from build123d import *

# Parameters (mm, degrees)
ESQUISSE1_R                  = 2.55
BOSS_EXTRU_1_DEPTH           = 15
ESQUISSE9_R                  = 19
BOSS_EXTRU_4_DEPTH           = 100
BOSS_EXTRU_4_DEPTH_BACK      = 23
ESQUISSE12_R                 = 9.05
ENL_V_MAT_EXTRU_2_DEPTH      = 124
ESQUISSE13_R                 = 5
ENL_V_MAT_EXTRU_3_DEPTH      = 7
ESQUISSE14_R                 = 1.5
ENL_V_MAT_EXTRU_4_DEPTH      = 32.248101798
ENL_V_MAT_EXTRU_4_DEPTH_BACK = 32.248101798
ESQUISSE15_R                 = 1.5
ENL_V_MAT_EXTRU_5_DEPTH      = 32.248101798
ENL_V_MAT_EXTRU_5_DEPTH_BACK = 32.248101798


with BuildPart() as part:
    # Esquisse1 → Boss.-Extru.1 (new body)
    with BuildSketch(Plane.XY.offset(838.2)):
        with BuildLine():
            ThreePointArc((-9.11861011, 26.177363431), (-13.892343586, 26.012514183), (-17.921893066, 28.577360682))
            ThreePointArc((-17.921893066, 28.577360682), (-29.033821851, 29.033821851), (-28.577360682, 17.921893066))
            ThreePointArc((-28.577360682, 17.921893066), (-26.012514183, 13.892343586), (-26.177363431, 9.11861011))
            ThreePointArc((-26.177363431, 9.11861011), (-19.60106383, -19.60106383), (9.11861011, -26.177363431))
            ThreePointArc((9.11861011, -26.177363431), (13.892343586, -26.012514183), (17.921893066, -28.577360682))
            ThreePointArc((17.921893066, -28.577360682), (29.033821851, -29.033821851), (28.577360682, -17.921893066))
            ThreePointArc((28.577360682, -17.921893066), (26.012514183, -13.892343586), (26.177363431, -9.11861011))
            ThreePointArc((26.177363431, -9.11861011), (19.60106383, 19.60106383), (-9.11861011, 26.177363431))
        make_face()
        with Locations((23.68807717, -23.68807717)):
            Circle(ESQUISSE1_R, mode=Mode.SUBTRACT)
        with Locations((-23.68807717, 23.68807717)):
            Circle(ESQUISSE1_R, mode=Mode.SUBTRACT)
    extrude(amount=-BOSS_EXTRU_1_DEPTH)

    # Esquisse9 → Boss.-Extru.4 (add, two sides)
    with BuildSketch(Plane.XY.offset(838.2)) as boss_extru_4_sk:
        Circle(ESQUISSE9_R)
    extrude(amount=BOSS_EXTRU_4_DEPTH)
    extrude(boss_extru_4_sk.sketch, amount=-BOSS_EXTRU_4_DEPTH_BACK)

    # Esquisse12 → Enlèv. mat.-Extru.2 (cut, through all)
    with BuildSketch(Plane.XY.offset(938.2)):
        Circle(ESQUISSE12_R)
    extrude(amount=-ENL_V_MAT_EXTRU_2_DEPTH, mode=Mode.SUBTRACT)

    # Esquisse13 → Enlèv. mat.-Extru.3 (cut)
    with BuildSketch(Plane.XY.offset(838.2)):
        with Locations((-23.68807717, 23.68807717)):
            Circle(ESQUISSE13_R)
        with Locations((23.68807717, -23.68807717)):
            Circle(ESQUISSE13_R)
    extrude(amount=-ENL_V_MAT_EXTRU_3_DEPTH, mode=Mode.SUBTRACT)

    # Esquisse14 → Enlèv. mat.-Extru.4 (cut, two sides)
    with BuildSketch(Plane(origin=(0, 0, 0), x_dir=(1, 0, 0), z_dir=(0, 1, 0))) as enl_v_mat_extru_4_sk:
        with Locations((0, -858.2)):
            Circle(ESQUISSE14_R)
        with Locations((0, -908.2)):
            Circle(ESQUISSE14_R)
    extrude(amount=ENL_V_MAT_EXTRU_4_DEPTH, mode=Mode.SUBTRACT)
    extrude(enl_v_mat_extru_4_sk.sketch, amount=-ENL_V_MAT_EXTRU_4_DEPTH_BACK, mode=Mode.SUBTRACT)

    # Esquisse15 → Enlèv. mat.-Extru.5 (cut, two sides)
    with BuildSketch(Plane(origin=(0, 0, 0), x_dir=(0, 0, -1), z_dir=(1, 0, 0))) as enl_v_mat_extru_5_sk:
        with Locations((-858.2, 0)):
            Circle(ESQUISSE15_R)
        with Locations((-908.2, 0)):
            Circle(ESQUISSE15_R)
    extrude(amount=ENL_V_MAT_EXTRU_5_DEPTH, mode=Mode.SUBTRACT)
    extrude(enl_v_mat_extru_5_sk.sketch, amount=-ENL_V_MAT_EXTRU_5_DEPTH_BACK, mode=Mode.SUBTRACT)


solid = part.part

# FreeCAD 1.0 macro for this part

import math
import FreeCAD as App
import Part
import Sketcher
from FreeCAD import Vector

doc = App.newDocument("Part")
body = doc.addObject("PartDesign::Body", "Body")

# Sketch on XY plane
sketch1 = doc.addObject("Sketcher::SketchObject", "Sketch")
body.addObject(sketch1)
sketch1.AttachmentSupport = (doc.XY_Plane, [""])
sketch1.MapMode = "FlatFace"
sketch1.AttachmentOffset = App.Placement(Vector(0, 0, 838.2), App.Rotation())
sketch1.addGeometry(Part.ArcOfCircle(Part.Circle(Vector(-11.8, 33.8, 0), Vector(0, 0, 1), 8.1), math.radians(-140), math.radians(-71)), False)
sketch1.addGeometry(Part.ArcOfCircle(Part.Circle(Vector(-23.7, 23.7, 0), Vector(0, 0, 1), 7.6), math.radians(40), math.radians(230)), False)
sketch1.addGeometry(Part.ArcOfCircle(Part.Circle(Vector(-33.8, 11.8, 0), Vector(0, 0, 1), 8.1), math.radians(-19), math.radians(50)), False)
sketch1.addGeometry(Part.ArcOfCircle(Part.Circle(Vector(0, 0, 0), Vector(0, 0, 1), 27.7), math.radians(161), math.radians(289)), False)
sketch1.addGeometry(Part.ArcOfCircle(Part.Circle(Vector(11.8, -33.8, 0), Vector(0, 0, 1), 8.1), math.radians(40), math.radians(109)), False)
sketch1.addGeometry(Part.ArcOfCircle(Part.Circle(Vector(23.7, -23.7, 0), Vector(0, 0, 1), 7.6), math.radians(-140), math.radians(50)), False)
sketch1.addGeometry(Part.ArcOfCircle(Part.Circle(Vector(33.8, -11.8, 0), Vector(0, 0, 1), 8.1), math.radians(161), math.radians(230)), False)
sketch1.addGeometry(Part.ArcOfCircle(Part.Circle(Vector(0, 0, 0), Vector(0, 0, 1), 27.7), math.radians(-19), math.radians(109)), False)
sketch1.addGeometry(Part.Circle(Vector(23.7, -23.7, 0), Vector(0, 0, 1), 2.5), False)
sketch1.addGeometry(Part.Circle(Vector(-23.7, 23.7, 0), Vector(0, 0, 1), 2.5), False)
sketch1.addConstraint(Sketcher.Constraint("Tangent", 0, 1, 1, 1))
sketch1.addConstraint(Sketcher.Constraint("Tangent", 1, 2, 2, 2))
sketch1.addConstraint(Sketcher.Constraint("Tangent", 2, 1, 3, 1))
sketch1.addConstraint(Sketcher.Constraint("Tangent", 3, 2, 4, 2))
sketch1.addConstraint(Sketcher.Constraint("Tangent", 4, 1, 5, 1))
sketch1.addConstraint(Sketcher.Constraint("Tangent", 5, 2, 6, 2))
sketch1.addConstraint(Sketcher.Constraint("Tangent", 6, 1, 7, 1))
sketch1.addConstraint(Sketcher.Constraint("Tangent", 7, 2, 0, 2))
sketch1.addConstraint(Sketcher.Constraint("Coincident", 3, 3, -1, 1))
sketch1.addConstraint(Sketcher.Constraint("Coincident", 7, 3, -1, 1))
sketch1.addConstraint(Sketcher.Constraint("Coincident", 8, 3, 5, 3))
sketch1.addConstraint(Sketcher.Constraint("Coincident", 9, 3, 1, 3))
sketch1.addConstraint(Sketcher.Constraint("Equal", 0, 2))
sketch1.addConstraint(Sketcher.Constraint("Equal", 2, 4))
sketch1.addConstraint(Sketcher.Constraint("Equal", 1, 5))
sketch1.addConstraint(Sketcher.Constraint("Equal", 4, 6))
sketch1.addConstraint(Sketcher.Constraint("Equal", 3, 7))
sketch1.addConstraint(Sketcher.Constraint("Equal", 8, 9))
sketch1.addConstraint(Sketcher.Constraint("Symmetric", 1, 3, 5, 3, -1, 1))
sketch1.addConstraint(Sketcher.Constraint("Diameter", 8, 5.1))
sketch1.addConstraint(Sketcher.Constraint("Radius", 3, 27.72009))
sketch1.addConstraint(Sketcher.Constraint("Radius", 0, 8.064026))
sketch1.addConstraint(Sketcher.Constraint("Radius", 1, 7.560025))
sketch1.addConstraint(Sketcher.Constraint("DistanceX", 2, 3, 0, 3, 22.0213))
sketch1.addConstraint(Sketcher.Constraint("DistanceY", 2, 3, 0, 3, 22.0213))
pad1 = doc.addObject("PartDesign::Pad", "Pad")
body.addObject(pad1)
pad1.Profile = sketch1
pad1.Length = 15
pad1.Reversed = True

# Sketch on XY plane
sketch2 = doc.addObject("Sketcher::SketchObject", "Sketch001")
body.addObject(sketch2)
sketch2.AttachmentSupport = (doc.XY_Plane, [""])
sketch2.MapMode = "FlatFace"
sketch2.AttachmentOffset = App.Placement(Vector(0, 0, 838.2), App.Rotation())
sketch2.addGeometry(Part.Circle(Vector(0, 0, 0), Vector(0, 0, 1), 19), False)
sketch2.addConstraint(Sketcher.Constraint("Coincident", 0, 3, -1, 1))
sketch2.addConstraint(Sketcher.Constraint("Diameter", 0, 38.0))
pad2 = doc.addObject("PartDesign::Pad", "Pad001")
body.addObject(pad2)
pad2.Profile = sketch2
pad2.Type = "TwoLengths"
pad2.Length = 100
pad2.Length2 = 23

# Sketch on XY plane
sketch3 = doc.addObject("Sketcher::SketchObject", "Sketch002")
body.addObject(sketch3)
sketch3.AttachmentSupport = (doc.XY_Plane, [""])
sketch3.MapMode = "FlatFace"
sketch3.AttachmentOffset = App.Placement(Vector(0, 0, 938.2), App.Rotation())
sketch3.addGeometry(Part.Circle(Vector(0, 0, 0), Vector(0, 0, 1), 9), False)
sketch3.addConstraint(Sketcher.Constraint("Coincident", 0, 3, -1, 1))
sketch3.addConstraint(Sketcher.Constraint("Diameter", 0, 18.1))
pocket1 = doc.addObject("PartDesign::Pocket", "Pocket")
body.addObject(pocket1)
pocket1.Profile = sketch3
pocket1.Type = "ThroughAll"

# Sketch on XY plane
sketch4 = doc.addObject("Sketcher::SketchObject", "Sketch003")
body.addObject(sketch4)
sketch4.AttachmentSupport = (doc.XY_Plane, [""])
sketch4.MapMode = "FlatFace"
sketch4.AttachmentOffset = App.Placement(Vector(0, 0, 838.2), App.Rotation())
sketch4.addGeometry(Part.Circle(Vector(-24, 24, 0), Vector(0, 0, 1), 5), False)
sketch4.addGeometry(Part.Circle(Vector(24, -24, 0), Vector(0, 0, 1), 5), False)
sketch4.addConstraint(Sketcher.Constraint("Equal", 0, 1))
sketch4.addConstraint(Sketcher.Constraint("Symmetric", 0, 3, 1, 3, -1, 1))
sketch4.addConstraint(Sketcher.Constraint("Diameter", 0, 10.0))
sketch4.addConstraint(Sketcher.Constraint("DistanceX", 0, 3, -1, 1, 23.688077))
sketch4.addConstraint(Sketcher.Constraint("DistanceY", -1, 1, 0, 3, 23.688077))
pocket2 = doc.addObject("PartDesign::Pocket", "Pocket001")
body.addObject(pocket2)
pocket2.Profile = sketch4
pocket2.Length = 7

# Sketch on XZ plane
sketch5 = doc.addObject("Sketcher::SketchObject", "Sketch004")
body.addObject(sketch5)
sketch5.AttachmentSupport = (doc.XZ_Plane, [""])
sketch5.MapMode = "FlatFace"
sketch5.addGeometry(Part.Circle(Vector(0, 858.2, 0), Vector(0, 0, 1), 1.5), False)
sketch5.addGeometry(Part.Circle(Vector(0, 908.2, 0), Vector(0, 0, 1), 1.5), False)
sketch5.addConstraint(Sketcher.Constraint("Equal", 0, 1))
sketch5.addConstraint(Sketcher.Constraint("PointOnObject", 0, 3, -2))
sketch5.addConstraint(Sketcher.Constraint("PointOnObject", 1, 3, -2))
sketch5.addConstraint(Sketcher.Constraint("Diameter", 0, 3.0))
sketch5.addConstraint(Sketcher.Constraint("DistanceY", 0, 3, 1, 3, 50.0))
sketch5.addConstraint(Sketcher.Constraint("DistanceY", -1, 1, 0, 3, 858.2))
pocket3 = doc.addObject("PartDesign::Pocket", "Pocket002")
body.addObject(pocket3)
pocket3.Profile = sketch5
pocket3.Type = "ThroughAll"
pocket3.Midplane = True

# Sketch on YZ plane
sketch6 = doc.addObject("Sketcher::SketchObject", "Sketch005")
body.addObject(sketch6)
sketch6.AttachmentSupport = (doc.YZ_Plane, [""])
sketch6.MapMode = "FlatFace"
sketch6.addGeometry(Part.Circle(Vector(0, 858.2, 0), Vector(0, 0, 1), 1.5), False)
sketch6.addGeometry(Part.Circle(Vector(0, 908.2, 0), Vector(0, 0, 1), 1.5), False)
sketch6.addConstraint(Sketcher.Constraint("Equal", 0, 1))
sketch6.addConstraint(Sketcher.Constraint("PointOnObject", 0, 3, -2))
sketch6.addConstraint(Sketcher.Constraint("PointOnObject", 1, 3, -2))
sketch6.addConstraint(Sketcher.Constraint("Diameter", 0, 3.0))
sketch6.addConstraint(Sketcher.Constraint("DistanceY", 0, 3, 1, 3, 50.0))
sketch6.addConstraint(Sketcher.Constraint("DistanceY", -1, 1, 0, 3, 858.2))
pocket4 = doc.addObject("PartDesign::Pocket", "Pocket003")
body.addObject(pocket4)
pocket4.Profile = sketch6
pocket4.Type = "ThroughAll"
pocket4.Midplane = True

doc.recompute()
